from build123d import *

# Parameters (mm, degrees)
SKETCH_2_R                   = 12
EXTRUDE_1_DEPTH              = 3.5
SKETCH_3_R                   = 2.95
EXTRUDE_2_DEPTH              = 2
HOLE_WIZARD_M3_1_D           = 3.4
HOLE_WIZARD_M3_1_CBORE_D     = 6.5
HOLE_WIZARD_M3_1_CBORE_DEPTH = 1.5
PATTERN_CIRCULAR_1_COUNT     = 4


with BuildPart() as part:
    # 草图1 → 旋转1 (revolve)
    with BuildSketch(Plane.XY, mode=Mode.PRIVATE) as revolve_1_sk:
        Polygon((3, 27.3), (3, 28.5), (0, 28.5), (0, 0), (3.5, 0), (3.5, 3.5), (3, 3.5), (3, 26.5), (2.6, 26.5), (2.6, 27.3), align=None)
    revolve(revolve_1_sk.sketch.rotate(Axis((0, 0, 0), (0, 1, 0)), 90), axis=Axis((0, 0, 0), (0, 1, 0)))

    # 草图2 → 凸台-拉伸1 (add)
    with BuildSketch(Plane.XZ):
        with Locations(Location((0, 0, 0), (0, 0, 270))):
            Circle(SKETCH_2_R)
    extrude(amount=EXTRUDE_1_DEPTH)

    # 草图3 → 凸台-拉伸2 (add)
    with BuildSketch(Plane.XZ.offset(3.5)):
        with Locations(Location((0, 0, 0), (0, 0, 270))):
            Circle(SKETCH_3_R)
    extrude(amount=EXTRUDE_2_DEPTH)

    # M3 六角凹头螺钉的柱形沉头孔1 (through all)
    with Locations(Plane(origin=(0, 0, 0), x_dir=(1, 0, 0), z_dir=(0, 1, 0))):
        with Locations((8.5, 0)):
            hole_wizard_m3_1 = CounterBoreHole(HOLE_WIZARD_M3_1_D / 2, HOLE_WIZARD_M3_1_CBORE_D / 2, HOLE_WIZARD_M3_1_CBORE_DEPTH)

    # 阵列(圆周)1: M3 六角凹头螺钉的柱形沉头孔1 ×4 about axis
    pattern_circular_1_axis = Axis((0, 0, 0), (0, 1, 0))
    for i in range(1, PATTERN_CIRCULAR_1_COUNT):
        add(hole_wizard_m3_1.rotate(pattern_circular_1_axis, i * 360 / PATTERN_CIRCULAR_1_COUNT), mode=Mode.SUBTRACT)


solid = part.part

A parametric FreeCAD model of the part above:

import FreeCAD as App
import Part
import Sketcher

V = App.Vector


def add_polygon(sketch, points):
    """Adds a closed chain of lines whose ends are joined by coincident constraints."""
    first, n = sketch.GeometryCount, len(points)
    for a, b in zip(points, points[1:] + points[:1]):
        sketch.addGeometry(Part.LineSegment(App.Vector(*a, 0), App.Vector(*b, 0)), False)
    for i in range(n):
        sketch.addConstraint(Sketcher.Constraint("Coincident", first + i, 2, first + (i + 1) % n, 1))

doc = App.newDocument("Part")
body = doc.addObject("PartDesign::Body", "Body")

sketch1 = body.newObject("Sketcher::SketchObject", "Sketch")
sketch1.AttachmentSupport = (doc.getObject("XY_Plane"), [""])
sketch1.MapMode = "FlatFace"
add_polygon(sketch1, [(3, 27.3), (3, 28.5), (0, 28.5), (0, 0), (3.5, 0), (3.5, 3.5), (3, 3.5), (3, 26.5), (2.6, 26.5), (2.6, 27.3)])
sketch1.addConstraint([
    Sketcher.Constraint("Vertical", 0),
    Sketcher.Constraint("Horizontal", 1),
    Sketcher.Constraint("Vertical", 2),
    Sketcher.Constraint("Horizontal", 3),
    Sketcher.Constraint("Vertical", 4),
    Sketcher.Constraint("Horizontal", 5),
    Sketcher.Constraint("Vertical", 6),
    Sketcher.Constraint("Horizontal", 7),
    Sketcher.Constraint("Vertical", 8),
    Sketcher.Constraint("Horizontal", 9),
    Sketcher.Constraint("Coincident", 2, 2, -1, 1),
    Sketcher.Constraint("Vertical", 0, 2, 5, 2),
    Sketcher.Constraint("Equal", 3, 4),
    Sketcher.Constraint("DistanceX", 1, 2, 1, 1, 3.0),
    Sketcher.Constraint("DistanceY", 6, 1, 6, 2, 23.0),
    Sketcher.Constraint("DistanceX", 3, 1, 3, 2, 3.5),
    Sketcher.Constraint("DistanceX", 7, 2, 7, 1, 0.4),
    Sketcher.Constraint("DistanceY", 0, 1, 0, 2, 1.2),
    Sketcher.Constraint("DistanceY", 2, 2, 2, 1, 28.5),
])
revolution = body.newObject("PartDesign::Revolution", "Revolution")
revolution.Profile = sketch1
revolution.ReferenceAxis = (sketch1, ["V_Axis"])
revolution.Angle = 360

sketch2 = body.newObject("Sketcher::SketchObject", "Sketch001")
sketch2.AttachmentSupport = (doc.getObject("XZ_Plane"), [""])
sketch2.MapMode = "FlatFace"
sketch2.addGeometry(Part.Circle(V(0, 0, 0), V(0, 0, 1), 12), False)
sketch2.addConstraint([
    Sketcher.Constraint("Coincident", 0, 3, -1, 1),
    Sketcher.Constraint("Diameter", 0, 24.0),
])
pad1 = body.newObject("PartDesign::Pad", "Pad")
pad1.Profile = sketch2
pad1.Length = 3.5

sketch3 = body.newObject("Sketcher::SketchObject", "Sketch002")
sketch3.AttachmentSupport = (doc.getObject("XZ_Plane"), [""])
sketch3.MapMode = "FlatFace"
sketch3.AttachmentOffset = App.Placement(V(0, 0, 3.5), App.Rotation())
sketch3.addGeometry(Part.Circle(V(0, 0, 0), V(0, 0, 1), 3), False)
sketch3.addConstraint([
    Sketcher.Constraint("Coincident", 0, 3, -1, 1),
    Sketcher.Constraint("Diameter", 0, 5.9),
])
pad2 = body.newObject("PartDesign::Pad", "Pad001")
pad2.Profile = sketch3
pad2.Length = 2

sketch4 = body.newObject("Sketcher::SketchObject", "Sketch003")
sketch4.AttachmentSupport = (doc.getObject("XZ_Plane"), [""])
sketch4.MapMode = "FlatFace"
sketch4.addGeometry(Part.Circle(V(8.5, 0, 0), V(0, 0, 1), 1.7), False)
sketch4.addConstraint([
    Sketcher.Constraint("PointOnObject", 0, 3, -1),
    Sketcher.Constraint("Diameter", 0, 3.4),
    Sketcher.Constraint("DistanceX", -1, 1, 0, 3, 8.5),
])
doc.recompute()
hole = body.newObject("PartDesign::Hole", "Hole")
hole.Profile = sketch4
hole.ThreadType = "None"
hole.Diameter = 3.4
hole.DepthType = "ThroughAll"
hole.HoleCutType = "Counterbore"
hole.HoleCutDiameter = 6.5
hole.HoleCutDepth = 1.5
hole.Reversed = True
doc.recompute()

polarpattern = body.newObject("PartDesign::PolarPattern", "PolarPattern")
polarpattern.Originals = [hole]
polarpattern.Axis = (doc.getObject("Y_Axis"), [""])
polarpattern.Angle = 360
polarpattern.Occurrences = 4
body.Tip = polarpattern

doc.recompute()
